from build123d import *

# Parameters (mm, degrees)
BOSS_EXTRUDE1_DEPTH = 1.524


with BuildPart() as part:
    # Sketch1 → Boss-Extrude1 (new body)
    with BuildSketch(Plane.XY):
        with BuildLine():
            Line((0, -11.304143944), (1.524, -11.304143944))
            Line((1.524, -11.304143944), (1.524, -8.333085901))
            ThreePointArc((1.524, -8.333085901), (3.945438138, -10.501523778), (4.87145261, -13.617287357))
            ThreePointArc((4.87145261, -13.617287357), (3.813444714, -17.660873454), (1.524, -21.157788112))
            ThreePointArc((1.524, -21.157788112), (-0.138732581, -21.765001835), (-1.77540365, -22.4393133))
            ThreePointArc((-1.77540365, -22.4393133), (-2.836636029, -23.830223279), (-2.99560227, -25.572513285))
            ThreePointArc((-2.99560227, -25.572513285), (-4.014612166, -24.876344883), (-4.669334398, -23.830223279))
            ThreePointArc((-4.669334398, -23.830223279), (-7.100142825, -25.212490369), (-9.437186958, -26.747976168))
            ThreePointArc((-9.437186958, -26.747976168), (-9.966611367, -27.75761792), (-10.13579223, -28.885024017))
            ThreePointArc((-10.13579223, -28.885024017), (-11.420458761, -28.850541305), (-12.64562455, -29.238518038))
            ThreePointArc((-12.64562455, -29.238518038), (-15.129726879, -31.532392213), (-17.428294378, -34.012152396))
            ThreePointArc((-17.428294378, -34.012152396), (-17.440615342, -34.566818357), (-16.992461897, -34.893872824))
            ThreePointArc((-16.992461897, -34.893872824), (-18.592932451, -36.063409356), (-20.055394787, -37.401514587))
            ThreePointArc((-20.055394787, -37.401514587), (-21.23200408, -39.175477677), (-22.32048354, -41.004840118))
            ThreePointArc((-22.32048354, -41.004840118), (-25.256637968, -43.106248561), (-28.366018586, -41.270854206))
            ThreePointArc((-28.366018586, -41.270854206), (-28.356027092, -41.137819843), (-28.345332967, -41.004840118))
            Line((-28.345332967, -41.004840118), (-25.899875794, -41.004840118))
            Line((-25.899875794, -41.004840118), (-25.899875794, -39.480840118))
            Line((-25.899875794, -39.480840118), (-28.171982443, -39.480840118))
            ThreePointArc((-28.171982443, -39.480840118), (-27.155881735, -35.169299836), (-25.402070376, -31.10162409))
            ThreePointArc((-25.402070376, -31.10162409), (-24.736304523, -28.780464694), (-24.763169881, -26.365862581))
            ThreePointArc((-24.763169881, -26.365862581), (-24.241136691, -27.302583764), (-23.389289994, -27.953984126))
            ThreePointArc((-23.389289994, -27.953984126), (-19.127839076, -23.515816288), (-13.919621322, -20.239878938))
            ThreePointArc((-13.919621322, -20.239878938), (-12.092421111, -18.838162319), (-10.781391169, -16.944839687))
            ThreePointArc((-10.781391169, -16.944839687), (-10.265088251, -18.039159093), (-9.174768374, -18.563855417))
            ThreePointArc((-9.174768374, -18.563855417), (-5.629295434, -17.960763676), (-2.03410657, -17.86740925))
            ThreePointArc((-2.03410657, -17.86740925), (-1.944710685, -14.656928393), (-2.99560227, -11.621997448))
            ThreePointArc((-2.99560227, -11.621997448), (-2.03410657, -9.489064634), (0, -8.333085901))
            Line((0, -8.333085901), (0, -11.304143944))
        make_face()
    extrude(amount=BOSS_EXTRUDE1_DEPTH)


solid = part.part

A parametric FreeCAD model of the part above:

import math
import FreeCAD as App
import Part
import Sketcher

V = App.Vector
Q = App.Units.Quantity

doc = App.newDocument("Part")
body = doc.addObject("PartDesign::Body", "Body")

# Sketch on XY plane
sketch1 = body.newObject("Sketcher::SketchObject", "Sketch")
sketch1.AttachmentSupport = (doc.getObject("XY_Plane"), [""])
sketch1.MapMode = "FlatFace"
sketch1.addGeometry(Part.LineSegment(V(1.524, -11.304144, 0), V(0, -11.304144, 0)), False)
sketch1.addGeometry(Part.LineSegment(V(0, -11.304144, 0), V(0, -8.333086, 0)), False)
sketch1.addGeometry(Part.ArcOfCircle(Part.Circle(V(0.755217, -12.029632, 0), V(0, 0, 1), 3.772904), math.radians(101.546812), math.radians(173.797499)), False)
sketch1.addGeometry(Part.ArcOfCircle(Part.Circle(V(-10.781391, -16.017356, 0), V(0, 0, 1), 8.940788), math.radians(-11.942084), math.radians(29.446294)), False)
sketch1.addGeometry(Part.ArcOfCircle(Part.Circle(V(-3.177823, -43.095711, 0), V(0, 0, 1), 25.254214), math.radians(87.404294), math.radians(103.736863)), False)
sketch1.addGeometry(Part.ArcOfCircle(Part.Circle(V(-8.979975, -16.763883, 0), V(0, 0, 1), 1.810482), math.radians(-174.263734), math.radians(-96.176525)), False)
sketch1.addGeometry(Part.ArcOfCircle(Part.Circle(V(-17.48004, -13.706937, 0), V(0, 0, 1), 7.440156), math.radians(-61.409849), math.radians(-25.797568)), False)
sketch1.addGeometry(Part.ArcOfCircle(Part.Circle(V(-3.177823, -43.095711, 0), V(0, 0, 1), 25.254214), math.radians(115.172616), math.radians(143.160727)), False)
sketch1.addGeometry(Part.ArcOfCircle(Part.Circle(V(-22.246898, -25.577373, 0), V(0, 0, 1), 2.636918), math.radians(-162.601293), math.radians(-115.672709)), False)
sketch1.addGeometry(Part.ArcOfCircle(Part.Circle(V(-33.004476, -27.665008, 0), V(0, 0, 1), 8.343075), math.radians(-24.325028), math.radians(8.958287)), False)
sketch1.addGeometry(Part.ArcOfCircle(Part.Circle(V(-3.177823, -43.095711, 0), V(0, 0, 1), 25.254214), math.radians(151.644941), math.radians(171.770453)), False)
sketch1.addGeometry(Part.LineSegment(V(-28.171982, -39.48084, 0), V(-25.899876, -39.48084, 0)), False)
sketch1.addGeometry(Part.LineSegment(V(-25.899876, -39.48084, 0), V(-25.899876, -41.00484, 0)), False)
sketch1.addGeometry(Part.LineSegment(V(-25.899876, -41.00484, 0), V(-28.345333, -41.00484, 0)), False)
sketch1.addGeometry(Part.ArcOfCircle(Part.Circle(V(-3.177809, -43.095712, 0), V(0, 0, 1), 25.254227), math.radians(175.250876), math.radians(175.856223)), False)
sketch1.addGeometry(Part.ArcOfCircle(Part.Circle(V(-25.40207, -39.801098, 0), V(0, 0, 1), 3.308349), math.radians(-153.6242), math.radians(-21.336822)), False)
sketch1.addGeometry(Part.ArcOfCircle(Part.Circle(V(15.621923, -62.342248, 0), V(0, 0, 1), 43.530578), math.radians(145.043983), math.radians(150.648207)), False)
sketch1.addGeometry(Part.ArcOfCircle(Part.Circle(V(-7.16732, -50.019104, 0), V(0, 0, 1), 18.036242), math.radians(123.007197), math.radians(135.607593)), False)
sketch1.addGeometry(Part.ArcOfCircle(Part.Circle(V(-16.903415, -34.301282, 0), V(0, 0, 1), 0.599244), math.radians(151.151875), math.radians(261.454298)), False)
sketch1.addGeometry(Part.ArcOfCircle(Part.Circle(V(15.621922, -62.342248, 0), V(0, 0, 1), 43.530577), math.radians(130.494286), math.radians(139.397368)), False)
sketch1.addGeometry(Part.ArcOfCircle(Part.Circle(V(-10.880556, -32.683886, 0), V(0, 0, 1), 3.871179), math.radians(78.907884), math.radians(117.126146)), False)
sketch1.addGeometry(Part.ArcOfCircle(Part.Circle(V(-6.707185, -28.823131, 0), V(0, 0, 1), 3.429166), math.radians(142.760464), math.radians(181.034189)), False)
sketch1.addGeometry(Part.ArcOfCircle(Part.Circle(V(15.621922, -62.342248, 0), V(0, 0, 1), 43.530577), math.radians(117.783897), math.radians(125.146344)), False)
sketch1.addGeometry(Part.ArcOfCircle(Part.Circle(V(-1.840314, -22.787604, 0), V(0, 0, 1), 3.015031), math.radians(-159.768921), math.radians(-112.530566)), False)
sketch1.addGeometry(Part.ArcOfCircle(Part.Circle(V(0.10901, -24.977381, 0), V(0, 0, 1), 3.161139), math.radians(126.592411), math.radians(190.851566)), False)
sketch1.addGeometry(Part.ArcOfCircle(Part.Circle(V(15.621923, -62.342249, 0), V(0, 0, 1), 43.530578), math.radians(108.896676), math.radians(113.556775)), False)
sketch1.addGeometry(Part.ArcOfCircle(Part.Circle(V(-8.037668, -12.399812, 0), V(0, 0, 1), 12.966405), math.radians(-42.488016), math.radians(-5.387702)), False)
sketch1.addGeometry(Part.ArcOfCircle(Part.Circle(V(-1.096457, -13.695479, 0), V(0, 0, 1), 5.968422), math.radians(0.750651), math.radians(63.956489)), False)
sketch1.addGeometry(Part.LineSegment(V(1.524, -8.333086, 0), V(1.524, -11.304144, 0)), False)
sketch1.addConstraint(Sketcher.Constraint("Coincident", 0, 2, 1, 1))
sketch1.addConstraint(Sketcher.Constraint("Coincident", 1, 2, 2, 1))
sketch1.addConstraint(Sketcher.Constraint("Coincident", 2, 2, 3, 2))
sketch1.addConstraint(Sketcher.Constraint("Coincident", 3, 1, 4, 1))
sketch1.addConstraint(Sketcher.Constraint("Coincident", 4, 2, 5, 2))
sketch1.addConstraint(Sketcher.Constraint("Coincident", 5, 1, 6, 2))
sketch1.addConstraint(Sketcher.Constraint("Coincident", 6, 1, 7, 1))
sketch1.addConstraint(Sketcher.Constraint("Coincident", 7, 2, 8, 2))
sketch1.addConstraint(Sketcher.Constraint("Coincident", 8, 1, 9, 2))
sketch1.addConstraint(Sketcher.Constraint("Coincident", 9, 1, 10, 1))
sketch1.addConstraint(Sketcher.Constraint("Coincident", 10, 2, 11, 1))
sketch1.addConstraint(Sketcher.Constraint("Coincident", 11, 2, 12, 1))
sketch1.addConstraint(Sketcher.Constraint("Coincident", 12, 2, 13, 1))
sketch1.addConstraint(Sketcher.Constraint("Coincident", 13, 2, 14, 1))
sketch1.addConstraint(Sketcher.Constraint("Coincident", 14, 2, 15, 1))
sketch1.addConstraint(Sketcher.Constraint("Coincident", 15, 2, 16, 2))
sketch1.addConstraint(Sketcher.Constraint("Coincident", 16, 1, 17, 2))
sketch1.addConstraint(Sketcher.Constraint("Coincident", 17, 1, 18, 2))
sketch1.addConstraint(Sketcher.Constraint("Coincident", 18, 1, 19, 2))
sketch1.addConstraint(Sketcher.Constraint("Coincident", 19, 1, 20, 2))
sketch1.addConstraint(Sketcher.Constraint("Coincident", 20, 1, 21, 2))
sketch1.addConstraint(Sketcher.Constraint("Coincident", 21, 1, 22, 2))
sketch1.addConstraint(Sketcher.Constraint("Coincident", 22, 1, 23, 1))
sketch1.addConstraint(Sketcher.Constraint("Coincident", 23, 2, 24, 2))
sketch1.addConstraint(Sketcher.Constraint("Coincident", 24, 1, 25, 2))
sketch1.addConstraint(Sketcher.Constraint("Coincident", 25, 1, 26, 1))
sketch1.addConstraint(Sketcher.Constraint("Coincident", 26, 2, 27, 1))
sketch1.addConstraint(Sketcher.Constraint("Coincident", 27, 2, 28, 1))
sketch1.addConstraint(Sketcher.Constraint("Coincident", 28, 2, 0, 1))
sketch1.addConstraint(Sketcher.Constraint("Horizontal", 0))
sketch1.addConstraint(Sketcher.Constraint("Vertical", 1))
sketch1.addConstraint(Sketcher.Constraint("Horizontal", 11))
sketch1.addConstraint(Sketcher.Constraint("Vertical", 12))
sketch1.addConstraint(Sketcher.Constraint("Horizontal", 13))
sketch1.addConstraint(Sketcher.Constraint("Vertical", 28))
sketch1.addConstraint(Sketcher.Constraint("Coincident", 7, 3, 4, 3))
sketch1.addConstraint(Sketcher.Constraint("Coincident", 10, 3, 4, 3))
sketch1.addConstraint(Sketcher.Constraint("Coincident", 19, 3, 16, 3))
sketch1.addConstraint(Sketcher.Constraint("Coincident", 22, 3, 16, 3))
sketch1.addConstraint(Sketcher.Constraint("Coincident", 25, 3, 16, 3))
sketch1.addConstraint(Sketcher.Constraint("PointOnObject", 0, 2, -2))
sketch1.addConstraint(Sketcher.Constraint("DistanceX", 0, 2, 0, 1, Q("0.06 in")))
sketch1.addConstraint(Sketcher.Constraint("DistanceY", 12, 2, 12, 1, Q("0.06 in")))
sketch1.addConstraint(Sketcher.Constraint("DistanceX", -1, 1, 25, 1, Q("0.06 in")))
sketch1.addConstraint(Sketcher.Constraint("DistanceY", 15, 2, 11, 2, Q("0.06 in")))
sketch1.addConstraint(Sketcher.Constraint("Radius", 8, Q("2.636918 mm")))
sketch1.addConstraint(Sketcher.Constraint("Radius", 15, Q("3.308349 mm")))
sketch1.addConstraint(Sketcher.Constraint("Radius", 20, Q("3.871179 mm")))
sketch1.addConstraint(Sketcher.Constraint("Radius", 23, Q("3.015031 mm")))
sketch1.addConstraint(Sketcher.Constraint("Radius", 24, Q("3.161139 mm")))
sketch1.addConstraint(Sketcher.Constraint("Radius", 27, Q("5.968422 mm")))
sketch1.addConstraint(Sketcher.Constraint("Radius", 2, Q("3.772904 mm")))
sketch1.addConstraint(Sketcher.Constraint("Radius", 3, Q("8.940788 mm")))
sketch1.addConstraint(Sketcher.Constraint("Radius", 4, Q("25.254214 mm")))
sketch1.addConstraint(Sketcher.Constraint("Radius", 5, Q("1.810482 mm")))
sketch1.addConstraint(Sketcher.Constraint("Radius", 6, Q("7.440156 mm")))
sketch1.addConstraint(Sketcher.Constraint("Radius", 7, Q("25.254214 mm")))
sketch1.addConstraint(Sketcher.Constraint("Radius", 9, Q("8.343075 mm")))
sketch1.addConstraint(Sketcher.Constraint("Radius", 10, Q("25.254214 mm")))
sketch1.addConstraint(Sketcher.Constraint("Radius", 14, Q("25.254227 mm")))
sketch1.addConstraint(Sketcher.Constraint("Radius", 16, Q("43.530578 mm")))
sketch1.addConstraint(Sketcher.Constraint("Radius", 17, Q("18.036242 mm")))
sketch1.addConstraint(Sketcher.Constraint("Radius", 18, Q("0.599244 mm")))
sketch1.addConstraint(Sketcher.Constraint("Radius", 19, Q("43.530577 mm")))
sketch1.addConstraint(Sketcher.Constraint("Radius", 21, Q("3.429166 mm")))
sketch1.addConstraint(Sketcher.Constraint("Radius", 22, Q("43.530577 mm")))
sketch1.addConstraint(Sketcher.Constraint("Radius", 25, Q("43.530578 mm")))
sketch1.addConstraint(Sketcher.Constraint("Radius", 26, Q("12.966405 mm")))
sketch1.addConstraint(Sketcher.Constraint("DistanceY", 9, 1, 9, 3, Q("0.1352999 in")))
sketch1.addConstraint(Sketcher.Constraint("DistanceY", 1, 1, 1, 2, Q("2.971058 mm")))
sketch1.addConstraint(Sketcher.Constraint("DistanceY", 28, 2, 28, 1, Q("2.971058 mm")))
sketch1.addConstraint(Sketcher.Constraint("DistanceX", 8, 3, -1, 1, Q("22.246898 mm")))
sketch1.addConstraint(Sketcher.Constraint("DistanceX", 9, 3, 5, 3, Q("24.024501 mm")))
sketch1.addConstraint(Sketcher.Constraint("DistanceY", 4, 2, 3, 3, Q("2.546499 mm")))
sketch1.addConstraint(Sketcher.Constraint("DistanceX", 4, 2, 26, 3, Q("1.1371 mm")))
sketch1.addConstraint(Sketcher.Constraint("DistanceX", 9, 1, 8, 1, Q("0.6389 mm")))
sketch1.addConstraint(Sketcher.Constraint("DistanceX", 10, 2, 15, 2, Q("5.851499 mm")))
sketch1.addConstraint(Sketcher.Constraint("DistanceX", 16, 1, 18, 1, Q("2.6271 mm")))
sketch1.addConstraint(Sketcher.Constraint("DistanceX", 21, 1, 21, 3, Q("2.730002 mm")))
sketch1.addConstraint(Sketcher.Constraint("DistanceX", 23, 2, 24, 1, Q("1.220199 mm")))
sketch1.addConstraint(Sketcher.Constraint("DistanceY", 23, 2, 24, 1, Q("3.1332 mm")))
sketch1.addConstraint(Sketcher.Constraint("DistanceY", 26, 2, 1, 2, Q("5.284201 mm")))
sketch1.addConstraint(Sketcher.Constraint("DistanceX", 11, 1, 11, 2, Q("2.272107 mm")))
sketch1.addConstraint(Sketcher.Constraint("DistanceX", 13, 2, 13, 1, Q("2.445457 mm")))
sketch1.addConstraint(Sketcher.Constraint("DistanceX", 3, 3, -1, 1, Q("10.781391 mm")))
sketch1.addConstraint(Sketcher.Constraint("DistanceY", 4, 3, -1, 1, Q("43.095711 mm")))
sketch1.addConstraint(Sketcher.Constraint("DistanceX", 6, 3, -1, 1, Q("17.48004 mm")))
sketch1.addConstraint(Sketcher.Constraint("DistanceX", 14, 3, -1, 1, Q("3.177809 mm")))
sketch1.addConstraint(Sketcher.Constraint("DistanceX", 15, 3, -1, 1, Q("25.40207 mm")))
sketch1.addConstraint(Sketcher.Constraint("DistanceY", 16, 3, -1, 1, Q("62.342248 mm")))
sketch1.addConstraint(Sketcher.Constraint("DistanceX", 17, 3, -1, 1, Q("7.16732 mm")))
sketch1.addConstraint(Sketcher.Constraint("DistanceY", 18, 3, -1, 1, Q("34.301282 mm")))
sketch1.addConstraint(Sketcher.Constraint("DistanceY", 21, 3, -1, 1, Q("28.823131 mm")))
sketch1.addConstraint(Sketcher.Constraint("DistanceX", -1, 1, 24, 3, Q("0.10901 mm")))
sketch1.addConstraint(Sketcher.Constraint("DistanceY", 24, 3, -1, 1, Q("24.977381 mm")))
sketch1.addConstraint(Sketcher.Constraint("DistanceX", 26, 3, -1, 1, Q("8.037668 mm")))
sketch1.addConstraint(Sketcher.Constraint("DistanceY", 27, 3, -1, 1, Q("13.695479 mm")))
sketch1.addConstraint(Sketcher.Constraint("DistanceX", 5, 1, -1, 1, Q("10.781391 mm")))
sketch1.addConstraint(Sketcher.Constraint("DistanceY", 5, 1, -1, 1, Q("16.94484 mm")))
sketch1.addConstraint(Sketcher.Constraint("DistanceX", 6, 1, -1, 1, Q("13.919621 mm")))
sketch1.addConstraint(Sketcher.Constraint("DistanceX", 17, 1, -1, 1, Q("16.992462 mm")))
sketch1.addConstraint(Sketcher.Constraint("DistanceY", 19, 1, -1, 1, Q("29.238518 mm")))
sketch1.addConstraint(Sketcher.Constraint("DistanceX", 4, 3, 2, 3, Q("3.933039 mm")))
sketch1.addConstraint(Sketcher.Constraint("DistanceX", 18, 3, 20, 3, Q("6.022859 mm")))
sketch1.addConstraint(Sketcher.Constraint("DistanceX", 21, 3, 23, 3, Q("4.866871 mm")))
pad1 = body.newObject("PartDesign::Pad", "Pad")
pad1.Profile = sketch1
pad1.Length = Q("0.06 in")

doc.recompute()
